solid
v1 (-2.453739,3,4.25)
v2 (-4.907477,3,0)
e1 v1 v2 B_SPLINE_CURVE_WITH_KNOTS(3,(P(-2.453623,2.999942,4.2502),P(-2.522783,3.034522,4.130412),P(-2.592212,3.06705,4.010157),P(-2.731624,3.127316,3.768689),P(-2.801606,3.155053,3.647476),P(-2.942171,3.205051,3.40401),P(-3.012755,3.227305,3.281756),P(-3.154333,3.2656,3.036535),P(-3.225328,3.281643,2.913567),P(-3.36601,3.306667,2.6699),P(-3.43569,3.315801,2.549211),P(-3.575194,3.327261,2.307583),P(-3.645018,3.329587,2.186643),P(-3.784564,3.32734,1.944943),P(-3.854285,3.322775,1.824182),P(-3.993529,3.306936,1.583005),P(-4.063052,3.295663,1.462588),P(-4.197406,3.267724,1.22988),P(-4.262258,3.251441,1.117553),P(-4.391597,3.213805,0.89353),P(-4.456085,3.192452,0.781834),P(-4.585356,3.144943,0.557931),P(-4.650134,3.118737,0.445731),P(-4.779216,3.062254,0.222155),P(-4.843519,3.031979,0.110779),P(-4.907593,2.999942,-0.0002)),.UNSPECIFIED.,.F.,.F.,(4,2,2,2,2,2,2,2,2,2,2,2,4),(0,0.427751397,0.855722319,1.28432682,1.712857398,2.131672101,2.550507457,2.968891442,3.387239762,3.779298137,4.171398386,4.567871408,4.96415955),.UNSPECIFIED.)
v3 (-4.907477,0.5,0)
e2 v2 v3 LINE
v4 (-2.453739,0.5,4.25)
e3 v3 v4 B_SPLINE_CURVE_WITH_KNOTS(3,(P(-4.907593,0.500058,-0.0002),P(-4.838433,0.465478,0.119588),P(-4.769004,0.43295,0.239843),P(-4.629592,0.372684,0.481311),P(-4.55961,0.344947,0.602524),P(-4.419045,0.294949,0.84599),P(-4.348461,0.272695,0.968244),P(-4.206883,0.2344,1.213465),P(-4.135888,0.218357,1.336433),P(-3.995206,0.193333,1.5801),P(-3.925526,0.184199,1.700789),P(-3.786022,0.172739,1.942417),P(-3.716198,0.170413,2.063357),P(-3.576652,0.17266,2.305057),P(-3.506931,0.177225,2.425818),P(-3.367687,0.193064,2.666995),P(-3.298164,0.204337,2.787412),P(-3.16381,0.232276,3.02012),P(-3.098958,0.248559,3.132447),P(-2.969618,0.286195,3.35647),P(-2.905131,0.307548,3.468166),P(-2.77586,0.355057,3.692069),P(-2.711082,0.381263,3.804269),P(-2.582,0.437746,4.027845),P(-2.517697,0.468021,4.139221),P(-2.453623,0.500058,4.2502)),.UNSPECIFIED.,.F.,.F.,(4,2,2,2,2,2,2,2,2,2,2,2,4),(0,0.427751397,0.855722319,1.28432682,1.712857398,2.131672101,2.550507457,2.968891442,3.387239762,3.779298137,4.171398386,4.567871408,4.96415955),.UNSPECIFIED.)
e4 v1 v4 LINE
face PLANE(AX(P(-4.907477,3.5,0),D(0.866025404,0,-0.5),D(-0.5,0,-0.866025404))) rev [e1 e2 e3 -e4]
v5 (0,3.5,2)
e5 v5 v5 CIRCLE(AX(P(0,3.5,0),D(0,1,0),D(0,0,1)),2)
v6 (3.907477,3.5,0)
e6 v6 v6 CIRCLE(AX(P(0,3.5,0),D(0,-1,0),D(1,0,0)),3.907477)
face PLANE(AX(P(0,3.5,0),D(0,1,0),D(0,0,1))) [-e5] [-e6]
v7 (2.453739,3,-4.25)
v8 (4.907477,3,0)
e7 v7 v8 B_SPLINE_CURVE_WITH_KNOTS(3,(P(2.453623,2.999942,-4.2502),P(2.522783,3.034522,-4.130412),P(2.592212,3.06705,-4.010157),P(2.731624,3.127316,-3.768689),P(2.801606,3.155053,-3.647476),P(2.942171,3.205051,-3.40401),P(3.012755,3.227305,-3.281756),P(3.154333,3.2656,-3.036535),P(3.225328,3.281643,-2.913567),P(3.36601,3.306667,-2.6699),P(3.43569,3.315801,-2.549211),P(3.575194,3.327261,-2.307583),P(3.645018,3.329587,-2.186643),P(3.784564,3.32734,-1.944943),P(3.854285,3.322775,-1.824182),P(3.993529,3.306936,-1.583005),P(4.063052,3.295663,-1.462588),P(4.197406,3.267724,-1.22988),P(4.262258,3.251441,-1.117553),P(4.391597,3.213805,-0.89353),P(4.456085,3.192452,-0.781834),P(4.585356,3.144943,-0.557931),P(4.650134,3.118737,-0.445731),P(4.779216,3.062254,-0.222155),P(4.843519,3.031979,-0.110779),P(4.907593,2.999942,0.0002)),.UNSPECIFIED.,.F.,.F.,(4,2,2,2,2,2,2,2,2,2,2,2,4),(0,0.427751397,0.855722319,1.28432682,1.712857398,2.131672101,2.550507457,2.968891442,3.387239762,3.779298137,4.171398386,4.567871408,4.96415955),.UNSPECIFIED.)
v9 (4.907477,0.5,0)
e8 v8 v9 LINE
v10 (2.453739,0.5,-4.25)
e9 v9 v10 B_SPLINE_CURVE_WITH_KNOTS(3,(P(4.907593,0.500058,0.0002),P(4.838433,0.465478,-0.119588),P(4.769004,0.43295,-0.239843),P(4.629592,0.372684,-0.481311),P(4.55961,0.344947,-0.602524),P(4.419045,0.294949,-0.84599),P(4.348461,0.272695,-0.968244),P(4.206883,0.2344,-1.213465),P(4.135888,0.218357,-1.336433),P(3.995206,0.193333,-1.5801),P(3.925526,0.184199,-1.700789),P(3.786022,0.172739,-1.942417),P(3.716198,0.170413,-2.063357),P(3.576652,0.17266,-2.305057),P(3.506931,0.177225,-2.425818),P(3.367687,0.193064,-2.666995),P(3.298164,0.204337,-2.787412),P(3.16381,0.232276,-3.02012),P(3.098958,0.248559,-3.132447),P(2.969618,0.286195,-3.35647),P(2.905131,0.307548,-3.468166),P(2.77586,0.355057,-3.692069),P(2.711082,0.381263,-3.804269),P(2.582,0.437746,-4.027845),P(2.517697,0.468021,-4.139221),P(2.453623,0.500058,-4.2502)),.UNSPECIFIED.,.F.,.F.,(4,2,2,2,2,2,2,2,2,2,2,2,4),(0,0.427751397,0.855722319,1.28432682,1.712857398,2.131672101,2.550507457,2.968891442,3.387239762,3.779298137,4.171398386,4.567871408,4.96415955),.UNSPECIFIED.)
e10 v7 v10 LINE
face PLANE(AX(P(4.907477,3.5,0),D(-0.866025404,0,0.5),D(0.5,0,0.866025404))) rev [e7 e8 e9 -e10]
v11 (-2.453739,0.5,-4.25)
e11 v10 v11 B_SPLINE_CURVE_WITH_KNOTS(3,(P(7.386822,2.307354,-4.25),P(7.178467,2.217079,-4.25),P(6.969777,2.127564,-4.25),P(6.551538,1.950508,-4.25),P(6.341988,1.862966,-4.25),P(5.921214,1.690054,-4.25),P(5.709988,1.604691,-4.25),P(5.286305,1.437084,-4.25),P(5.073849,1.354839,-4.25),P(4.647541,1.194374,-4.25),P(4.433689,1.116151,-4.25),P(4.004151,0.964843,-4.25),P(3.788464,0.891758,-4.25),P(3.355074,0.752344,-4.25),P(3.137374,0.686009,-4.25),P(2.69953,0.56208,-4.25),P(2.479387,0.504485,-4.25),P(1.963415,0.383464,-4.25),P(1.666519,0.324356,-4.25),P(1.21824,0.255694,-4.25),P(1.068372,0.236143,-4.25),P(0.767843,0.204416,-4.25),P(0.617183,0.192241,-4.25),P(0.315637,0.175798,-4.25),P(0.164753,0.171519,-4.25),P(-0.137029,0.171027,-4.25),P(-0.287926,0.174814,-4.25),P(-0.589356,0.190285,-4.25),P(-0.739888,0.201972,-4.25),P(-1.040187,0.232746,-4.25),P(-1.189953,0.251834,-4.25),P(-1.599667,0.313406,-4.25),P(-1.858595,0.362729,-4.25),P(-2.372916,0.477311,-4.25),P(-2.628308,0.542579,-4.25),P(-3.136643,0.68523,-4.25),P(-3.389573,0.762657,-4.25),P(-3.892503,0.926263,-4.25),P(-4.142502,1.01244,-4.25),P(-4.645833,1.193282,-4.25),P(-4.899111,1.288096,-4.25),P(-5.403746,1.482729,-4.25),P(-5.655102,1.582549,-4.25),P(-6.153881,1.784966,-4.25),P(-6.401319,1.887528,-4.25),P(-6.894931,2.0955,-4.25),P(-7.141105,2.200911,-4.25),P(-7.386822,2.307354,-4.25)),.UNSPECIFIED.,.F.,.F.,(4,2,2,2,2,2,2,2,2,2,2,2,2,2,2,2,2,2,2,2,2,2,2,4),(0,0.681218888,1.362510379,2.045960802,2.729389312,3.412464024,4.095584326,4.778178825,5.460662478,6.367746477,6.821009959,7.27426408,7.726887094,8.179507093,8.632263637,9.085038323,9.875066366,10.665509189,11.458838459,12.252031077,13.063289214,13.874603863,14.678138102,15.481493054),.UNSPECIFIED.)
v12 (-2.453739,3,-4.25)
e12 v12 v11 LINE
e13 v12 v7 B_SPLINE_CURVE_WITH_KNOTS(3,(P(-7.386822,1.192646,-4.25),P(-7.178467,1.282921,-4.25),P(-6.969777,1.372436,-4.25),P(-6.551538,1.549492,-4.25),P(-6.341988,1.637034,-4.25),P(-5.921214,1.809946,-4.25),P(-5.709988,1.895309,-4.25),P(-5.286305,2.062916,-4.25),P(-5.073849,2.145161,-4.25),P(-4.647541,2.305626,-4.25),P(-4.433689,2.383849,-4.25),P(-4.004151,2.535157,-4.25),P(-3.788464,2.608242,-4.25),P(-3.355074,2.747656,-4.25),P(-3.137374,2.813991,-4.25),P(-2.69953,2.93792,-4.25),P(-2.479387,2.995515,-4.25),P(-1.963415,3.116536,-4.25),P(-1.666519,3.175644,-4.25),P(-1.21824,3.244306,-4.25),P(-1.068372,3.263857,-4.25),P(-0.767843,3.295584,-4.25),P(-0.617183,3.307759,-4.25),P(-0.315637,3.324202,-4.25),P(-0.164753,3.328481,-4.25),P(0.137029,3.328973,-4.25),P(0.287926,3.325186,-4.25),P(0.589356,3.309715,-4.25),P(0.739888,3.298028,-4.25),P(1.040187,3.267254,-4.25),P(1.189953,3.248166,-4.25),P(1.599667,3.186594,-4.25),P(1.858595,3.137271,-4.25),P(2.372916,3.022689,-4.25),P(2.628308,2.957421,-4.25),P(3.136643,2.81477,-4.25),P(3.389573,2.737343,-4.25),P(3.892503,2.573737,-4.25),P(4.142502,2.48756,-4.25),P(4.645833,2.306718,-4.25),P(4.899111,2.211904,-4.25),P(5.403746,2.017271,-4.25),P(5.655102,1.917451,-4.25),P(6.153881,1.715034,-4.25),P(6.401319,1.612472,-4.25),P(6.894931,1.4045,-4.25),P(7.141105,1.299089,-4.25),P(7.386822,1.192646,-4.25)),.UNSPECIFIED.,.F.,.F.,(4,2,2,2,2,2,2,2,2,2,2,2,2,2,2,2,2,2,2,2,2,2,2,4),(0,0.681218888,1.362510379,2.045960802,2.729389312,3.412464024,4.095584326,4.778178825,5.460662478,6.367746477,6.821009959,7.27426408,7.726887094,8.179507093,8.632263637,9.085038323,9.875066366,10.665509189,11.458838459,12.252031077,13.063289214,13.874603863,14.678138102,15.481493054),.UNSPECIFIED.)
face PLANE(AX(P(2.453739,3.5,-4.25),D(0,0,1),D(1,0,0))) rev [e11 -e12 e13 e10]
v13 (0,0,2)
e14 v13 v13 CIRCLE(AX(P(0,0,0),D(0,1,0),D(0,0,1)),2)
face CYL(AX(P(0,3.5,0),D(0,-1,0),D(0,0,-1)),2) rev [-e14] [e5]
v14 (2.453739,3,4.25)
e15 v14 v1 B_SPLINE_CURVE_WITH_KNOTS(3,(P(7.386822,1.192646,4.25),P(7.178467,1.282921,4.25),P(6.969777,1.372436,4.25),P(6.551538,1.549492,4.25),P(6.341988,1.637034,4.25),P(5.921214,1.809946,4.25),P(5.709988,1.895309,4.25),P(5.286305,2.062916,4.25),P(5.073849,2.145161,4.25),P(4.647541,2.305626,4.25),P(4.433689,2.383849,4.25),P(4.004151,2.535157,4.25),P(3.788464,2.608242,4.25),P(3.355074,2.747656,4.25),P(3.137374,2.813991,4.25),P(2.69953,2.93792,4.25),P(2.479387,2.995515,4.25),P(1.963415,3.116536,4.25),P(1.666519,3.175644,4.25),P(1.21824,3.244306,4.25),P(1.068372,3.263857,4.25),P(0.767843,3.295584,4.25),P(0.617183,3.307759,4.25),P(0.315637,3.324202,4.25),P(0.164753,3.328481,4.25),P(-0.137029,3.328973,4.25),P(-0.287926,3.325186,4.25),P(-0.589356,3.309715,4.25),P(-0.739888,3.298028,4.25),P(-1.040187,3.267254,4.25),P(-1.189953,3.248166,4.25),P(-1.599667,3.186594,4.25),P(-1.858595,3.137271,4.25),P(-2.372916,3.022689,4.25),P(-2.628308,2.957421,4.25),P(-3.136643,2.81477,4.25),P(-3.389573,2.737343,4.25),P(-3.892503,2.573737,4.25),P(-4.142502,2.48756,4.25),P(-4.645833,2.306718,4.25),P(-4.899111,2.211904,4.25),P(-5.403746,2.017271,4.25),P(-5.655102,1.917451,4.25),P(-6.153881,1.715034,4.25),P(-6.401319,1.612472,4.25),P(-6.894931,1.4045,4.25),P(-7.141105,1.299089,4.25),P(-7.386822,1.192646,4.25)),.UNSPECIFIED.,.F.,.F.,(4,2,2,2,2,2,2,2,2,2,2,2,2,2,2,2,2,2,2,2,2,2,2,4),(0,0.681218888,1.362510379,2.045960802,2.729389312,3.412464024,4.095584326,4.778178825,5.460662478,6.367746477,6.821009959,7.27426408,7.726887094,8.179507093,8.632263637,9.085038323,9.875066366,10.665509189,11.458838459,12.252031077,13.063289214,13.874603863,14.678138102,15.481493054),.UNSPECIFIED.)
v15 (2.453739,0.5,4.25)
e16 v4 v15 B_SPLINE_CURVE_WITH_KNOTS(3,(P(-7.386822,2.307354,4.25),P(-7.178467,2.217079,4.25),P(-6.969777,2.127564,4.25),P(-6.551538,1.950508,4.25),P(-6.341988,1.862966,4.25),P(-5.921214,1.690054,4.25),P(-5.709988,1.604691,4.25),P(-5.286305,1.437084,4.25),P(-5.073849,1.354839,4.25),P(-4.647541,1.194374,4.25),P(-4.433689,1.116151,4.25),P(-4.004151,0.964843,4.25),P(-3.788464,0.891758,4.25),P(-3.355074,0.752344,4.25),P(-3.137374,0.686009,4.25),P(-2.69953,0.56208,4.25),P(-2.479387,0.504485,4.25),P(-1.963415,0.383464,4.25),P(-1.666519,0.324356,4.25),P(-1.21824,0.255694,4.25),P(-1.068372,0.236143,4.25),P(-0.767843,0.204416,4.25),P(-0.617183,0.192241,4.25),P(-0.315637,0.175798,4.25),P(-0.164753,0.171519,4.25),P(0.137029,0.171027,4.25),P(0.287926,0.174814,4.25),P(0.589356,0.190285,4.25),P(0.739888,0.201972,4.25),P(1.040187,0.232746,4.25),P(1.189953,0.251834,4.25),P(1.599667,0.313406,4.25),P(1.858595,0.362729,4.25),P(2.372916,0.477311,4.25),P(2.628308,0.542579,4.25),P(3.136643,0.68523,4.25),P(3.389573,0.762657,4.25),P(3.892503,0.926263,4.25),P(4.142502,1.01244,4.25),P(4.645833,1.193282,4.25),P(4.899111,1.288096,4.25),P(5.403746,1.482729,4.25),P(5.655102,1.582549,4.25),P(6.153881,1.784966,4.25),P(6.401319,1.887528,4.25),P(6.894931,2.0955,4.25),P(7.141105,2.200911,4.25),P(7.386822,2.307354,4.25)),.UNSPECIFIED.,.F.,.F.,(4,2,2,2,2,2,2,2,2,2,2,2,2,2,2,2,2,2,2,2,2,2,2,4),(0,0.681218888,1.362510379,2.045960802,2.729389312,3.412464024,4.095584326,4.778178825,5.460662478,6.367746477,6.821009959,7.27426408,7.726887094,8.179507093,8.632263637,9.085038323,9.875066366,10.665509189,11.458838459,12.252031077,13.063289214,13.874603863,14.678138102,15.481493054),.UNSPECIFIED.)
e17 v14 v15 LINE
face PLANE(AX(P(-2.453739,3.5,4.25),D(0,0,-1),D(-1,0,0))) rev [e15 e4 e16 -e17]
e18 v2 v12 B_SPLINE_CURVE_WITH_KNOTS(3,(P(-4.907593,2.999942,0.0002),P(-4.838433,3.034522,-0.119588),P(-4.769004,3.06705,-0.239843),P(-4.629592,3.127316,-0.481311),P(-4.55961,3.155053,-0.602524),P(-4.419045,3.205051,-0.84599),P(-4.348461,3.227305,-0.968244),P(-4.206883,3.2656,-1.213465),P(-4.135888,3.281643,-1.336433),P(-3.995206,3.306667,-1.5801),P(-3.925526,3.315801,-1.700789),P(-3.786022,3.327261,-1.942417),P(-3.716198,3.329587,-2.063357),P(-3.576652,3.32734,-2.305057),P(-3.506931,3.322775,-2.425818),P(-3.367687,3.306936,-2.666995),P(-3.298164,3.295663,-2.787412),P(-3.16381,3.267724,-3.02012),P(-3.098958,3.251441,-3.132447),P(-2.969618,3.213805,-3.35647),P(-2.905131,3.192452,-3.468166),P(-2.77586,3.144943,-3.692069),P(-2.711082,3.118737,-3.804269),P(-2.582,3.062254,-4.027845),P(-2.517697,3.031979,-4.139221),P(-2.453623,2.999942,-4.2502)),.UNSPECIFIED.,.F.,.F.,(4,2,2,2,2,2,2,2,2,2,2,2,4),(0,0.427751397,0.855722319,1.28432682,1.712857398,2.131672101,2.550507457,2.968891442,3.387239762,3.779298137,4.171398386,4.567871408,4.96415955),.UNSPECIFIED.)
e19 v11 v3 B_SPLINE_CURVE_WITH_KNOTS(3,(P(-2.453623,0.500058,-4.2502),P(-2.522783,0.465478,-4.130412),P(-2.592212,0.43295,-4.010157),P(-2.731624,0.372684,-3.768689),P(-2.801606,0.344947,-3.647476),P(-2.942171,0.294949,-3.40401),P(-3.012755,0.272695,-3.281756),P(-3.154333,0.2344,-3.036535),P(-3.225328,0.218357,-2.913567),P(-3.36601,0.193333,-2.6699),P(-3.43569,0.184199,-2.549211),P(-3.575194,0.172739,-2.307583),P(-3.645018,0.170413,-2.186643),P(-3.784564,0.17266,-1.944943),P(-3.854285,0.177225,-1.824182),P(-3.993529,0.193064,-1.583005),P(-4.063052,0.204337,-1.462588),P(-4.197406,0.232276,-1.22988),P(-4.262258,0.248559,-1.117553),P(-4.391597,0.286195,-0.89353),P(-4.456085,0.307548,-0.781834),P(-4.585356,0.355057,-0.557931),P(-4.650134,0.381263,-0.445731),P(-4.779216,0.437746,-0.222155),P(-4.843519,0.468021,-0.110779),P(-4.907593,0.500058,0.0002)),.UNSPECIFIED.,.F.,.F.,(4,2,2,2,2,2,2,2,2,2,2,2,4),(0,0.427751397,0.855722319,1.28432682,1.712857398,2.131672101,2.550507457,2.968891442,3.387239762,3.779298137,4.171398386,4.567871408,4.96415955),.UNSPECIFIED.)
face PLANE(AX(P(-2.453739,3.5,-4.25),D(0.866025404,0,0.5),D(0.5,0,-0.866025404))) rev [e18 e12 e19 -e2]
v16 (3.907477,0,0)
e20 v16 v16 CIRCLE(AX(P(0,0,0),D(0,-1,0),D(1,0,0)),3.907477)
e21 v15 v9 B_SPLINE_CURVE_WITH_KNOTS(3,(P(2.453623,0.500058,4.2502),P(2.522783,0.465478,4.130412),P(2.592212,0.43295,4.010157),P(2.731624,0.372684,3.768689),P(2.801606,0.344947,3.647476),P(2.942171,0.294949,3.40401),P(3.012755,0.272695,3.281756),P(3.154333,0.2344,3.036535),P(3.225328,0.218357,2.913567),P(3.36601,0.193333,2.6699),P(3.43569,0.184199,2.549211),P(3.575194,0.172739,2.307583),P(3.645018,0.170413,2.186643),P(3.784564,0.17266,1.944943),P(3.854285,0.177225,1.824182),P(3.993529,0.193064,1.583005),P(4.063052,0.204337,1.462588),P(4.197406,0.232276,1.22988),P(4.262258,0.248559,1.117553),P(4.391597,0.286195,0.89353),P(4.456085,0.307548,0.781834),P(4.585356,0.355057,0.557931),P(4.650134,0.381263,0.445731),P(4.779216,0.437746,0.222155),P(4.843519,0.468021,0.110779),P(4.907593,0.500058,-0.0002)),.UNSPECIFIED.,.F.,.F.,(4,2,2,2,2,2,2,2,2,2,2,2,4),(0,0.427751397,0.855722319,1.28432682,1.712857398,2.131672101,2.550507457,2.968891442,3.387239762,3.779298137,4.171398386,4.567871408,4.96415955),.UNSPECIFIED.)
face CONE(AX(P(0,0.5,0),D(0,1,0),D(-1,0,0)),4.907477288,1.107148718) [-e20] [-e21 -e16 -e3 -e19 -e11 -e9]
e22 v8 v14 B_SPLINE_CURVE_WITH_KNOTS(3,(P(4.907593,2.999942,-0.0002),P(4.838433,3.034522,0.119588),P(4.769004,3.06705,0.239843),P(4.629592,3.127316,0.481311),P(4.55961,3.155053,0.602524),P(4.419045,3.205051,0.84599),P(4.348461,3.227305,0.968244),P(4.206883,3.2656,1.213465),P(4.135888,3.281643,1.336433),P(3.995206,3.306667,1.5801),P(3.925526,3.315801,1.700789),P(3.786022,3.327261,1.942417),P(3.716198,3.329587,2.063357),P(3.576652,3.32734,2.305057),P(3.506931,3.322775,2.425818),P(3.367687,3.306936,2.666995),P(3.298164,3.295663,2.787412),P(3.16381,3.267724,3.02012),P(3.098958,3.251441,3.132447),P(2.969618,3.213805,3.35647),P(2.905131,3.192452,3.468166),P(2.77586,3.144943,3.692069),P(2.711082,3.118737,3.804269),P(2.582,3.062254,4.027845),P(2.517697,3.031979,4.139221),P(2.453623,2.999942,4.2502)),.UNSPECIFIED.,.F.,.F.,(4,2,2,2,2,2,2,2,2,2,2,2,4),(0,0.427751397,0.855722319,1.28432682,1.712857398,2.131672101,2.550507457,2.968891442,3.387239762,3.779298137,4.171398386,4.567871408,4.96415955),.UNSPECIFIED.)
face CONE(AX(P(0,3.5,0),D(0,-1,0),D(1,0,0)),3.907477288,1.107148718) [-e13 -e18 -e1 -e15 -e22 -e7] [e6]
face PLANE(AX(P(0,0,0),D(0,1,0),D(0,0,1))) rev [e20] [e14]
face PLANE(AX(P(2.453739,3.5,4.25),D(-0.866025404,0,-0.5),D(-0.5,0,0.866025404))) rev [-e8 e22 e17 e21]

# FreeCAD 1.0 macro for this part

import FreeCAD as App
import Part
import Sketcher
Q = App.Units.Quantity

doc = App.newDocument("Part")
body = doc.addObject("PartDesign::Body", "Body")

sketch1 = body.newObject("Sketcher::SketchObject", "Sketch")
sketch1.AttachmentSupport = (doc.getObject("XZ_Plane"), [""])
sketch1.MapMode = "FlatFace"
sketch1.addGeometry([
    Part.LineSegment(App.Vector(2.5, -4.2, 0), App.Vector(-2.5, -4.2, 0)),
    Part.LineSegment(App.Vector(-2.5, -4.2, 0), App.Vector(-4.9, 0, 0)),
    Part.LineSegment(App.Vector(-4.9, 0, 0), App.Vector(-2.5, 4.2, 0)),
    Part.LineSegment(App.Vector(-2.5, 4.2, 0), App.Vector(2.5, 4.2, 0)),
    Part.LineSegment(App.Vector(2.5, 4.2, 0), App.Vector(4.9, 0, 0)),
    Part.LineSegment(App.Vector(4.9, 0, 0), App.Vector(2.5, -4.2, 0)),
    Part.Circle(App.Vector(0, 0, 0), App.Vector(0, 0, 1), 2),
], False)
sketch1.addConstraint([
    Sketcher.Constraint("Coincident", 0, 2, 1, 1),
    Sketcher.Constraint("Coincident", 1, 2, 2, 1),
    Sketcher.Constraint("Coincident", 2, 2, 3, 1),
    Sketcher.Constraint("Coincident", 3, 2, 4, 1),
    Sketcher.Constraint("Coincident", 4, 2, 5, 1),
    Sketcher.Constraint("Coincident", 5, 2, 0, 1),
    Sketcher.Constraint("Horizontal", 0),
    Sketcher.Constraint("Horizontal", 3),
    Sketcher.Constraint("Coincident", 6, 3, -1, 1),
    Sketcher.Constraint("Symmetric", 0, 2, 3, 2, -1, 1),
    Sketcher.Constraint("Symmetric", 1, 2, 4, 2, -1, 1),
    Sketcher.Constraint("PointOnObject", 1, 2, -1),
    Sketcher.Constraint("Parallel", 2, 5),
    Sketcher.Constraint("Vertical", 0, 2, 2, 2),
    Sketcher.Constraint("Diameter", 6, Q("4 mm")),
    Sketcher.Constraint("Angle", 1, Q("120 deg")),
    Sketcher.Constraint("DistanceY", 0, 2, 2, 2, Q("8.5 mm")),
    Sketcher.Constraint("DistanceX", 0, 2, 0, 1, Q("4.907477 mm")),
])
pad1 = body.newObject("PartDesign::Pad", "Pad")
pad1.Profile = sketch1
pad1.Length = 3.5
pad1.Reversed = True

sketch2 = body.newObject("Sketcher::SketchObject", "Sketch001")
sketch2.AttachmentSupport = (doc.getObject("XY_Plane"), [""])
sketch2.MapMode = "FlatFace"
sketch2.addGeometry([
    Part.LineSegment(App.Vector(3.9, 3.5, 0), App.Vector(4.9, 3, 0)),
    Part.LineSegment(App.Vector(4.9, 3, 0), App.Vector(4.9, 3.5, 0)),
    Part.LineSegment(App.Vector(4.9, 3.5, 0), App.Vector(3.9, 3.5, 0)),
    Part.LineSegment(App.Vector(3.9, 0, 0), App.Vector(4.9, 0, 0)),
    Part.LineSegment(App.Vector(4.9, 0, 0), App.Vector(4.9, 0.5, 0)),
    Part.LineSegment(App.Vector(4.9, 0.5, 0), App.Vector(3.9, 0, 0)),
], False)
sketch2.addConstraint([
    Sketcher.Constraint("Coincident", 0, 2, 1, 1),
    Sketcher.Constraint("Coincident", 1, 2, 2, 1),
    Sketcher.Constraint("Coincident", 2, 2, 0, 1),
    Sketcher.Constraint("Coincident", 3, 2, 4, 1),
    Sketcher.Constraint("Coincident", 4, 2, 5, 1),
    Sketcher.Constraint("Coincident", 5, 2, 3, 1),
    Sketcher.Constraint("Vertical", 1),
    Sketcher.Constraint("Horizontal", 2),
    Sketcher.Constraint("Horizontal", 3),
    Sketcher.Constraint("Vertical", 4),
    Sketcher.Constraint("PointOnObject", 3, 2, -1),
    Sketcher.Constraint("Vertical", 1, 2, 3, 2),
    Sketcher.Constraint("Vertical", 2, 2, 5, 2),
    Sketcher.Constraint("Equal", 1, 4),
    Sketcher.Constraint("DistanceX", 2, 2, 2, 1, Q("1 mm")),
    Sketcher.Constraint("DistanceY", 1, 1, 1, 2, Q("0.5 mm")),
    Sketcher.Constraint("DistanceY", -1, 1, 0, 2, Q("3 mm")),
    Sketcher.Constraint("DistanceX", -1, 1, 0, 2, Q("4.907477 mm")),
])
groove = body.newObject("PartDesign::Groove", "Groove")
groove.Profile = sketch2
groove.ReferenceAxis = (sketch2, ["V_Axis"])
groove.Angle = 360

doc.recompute()
